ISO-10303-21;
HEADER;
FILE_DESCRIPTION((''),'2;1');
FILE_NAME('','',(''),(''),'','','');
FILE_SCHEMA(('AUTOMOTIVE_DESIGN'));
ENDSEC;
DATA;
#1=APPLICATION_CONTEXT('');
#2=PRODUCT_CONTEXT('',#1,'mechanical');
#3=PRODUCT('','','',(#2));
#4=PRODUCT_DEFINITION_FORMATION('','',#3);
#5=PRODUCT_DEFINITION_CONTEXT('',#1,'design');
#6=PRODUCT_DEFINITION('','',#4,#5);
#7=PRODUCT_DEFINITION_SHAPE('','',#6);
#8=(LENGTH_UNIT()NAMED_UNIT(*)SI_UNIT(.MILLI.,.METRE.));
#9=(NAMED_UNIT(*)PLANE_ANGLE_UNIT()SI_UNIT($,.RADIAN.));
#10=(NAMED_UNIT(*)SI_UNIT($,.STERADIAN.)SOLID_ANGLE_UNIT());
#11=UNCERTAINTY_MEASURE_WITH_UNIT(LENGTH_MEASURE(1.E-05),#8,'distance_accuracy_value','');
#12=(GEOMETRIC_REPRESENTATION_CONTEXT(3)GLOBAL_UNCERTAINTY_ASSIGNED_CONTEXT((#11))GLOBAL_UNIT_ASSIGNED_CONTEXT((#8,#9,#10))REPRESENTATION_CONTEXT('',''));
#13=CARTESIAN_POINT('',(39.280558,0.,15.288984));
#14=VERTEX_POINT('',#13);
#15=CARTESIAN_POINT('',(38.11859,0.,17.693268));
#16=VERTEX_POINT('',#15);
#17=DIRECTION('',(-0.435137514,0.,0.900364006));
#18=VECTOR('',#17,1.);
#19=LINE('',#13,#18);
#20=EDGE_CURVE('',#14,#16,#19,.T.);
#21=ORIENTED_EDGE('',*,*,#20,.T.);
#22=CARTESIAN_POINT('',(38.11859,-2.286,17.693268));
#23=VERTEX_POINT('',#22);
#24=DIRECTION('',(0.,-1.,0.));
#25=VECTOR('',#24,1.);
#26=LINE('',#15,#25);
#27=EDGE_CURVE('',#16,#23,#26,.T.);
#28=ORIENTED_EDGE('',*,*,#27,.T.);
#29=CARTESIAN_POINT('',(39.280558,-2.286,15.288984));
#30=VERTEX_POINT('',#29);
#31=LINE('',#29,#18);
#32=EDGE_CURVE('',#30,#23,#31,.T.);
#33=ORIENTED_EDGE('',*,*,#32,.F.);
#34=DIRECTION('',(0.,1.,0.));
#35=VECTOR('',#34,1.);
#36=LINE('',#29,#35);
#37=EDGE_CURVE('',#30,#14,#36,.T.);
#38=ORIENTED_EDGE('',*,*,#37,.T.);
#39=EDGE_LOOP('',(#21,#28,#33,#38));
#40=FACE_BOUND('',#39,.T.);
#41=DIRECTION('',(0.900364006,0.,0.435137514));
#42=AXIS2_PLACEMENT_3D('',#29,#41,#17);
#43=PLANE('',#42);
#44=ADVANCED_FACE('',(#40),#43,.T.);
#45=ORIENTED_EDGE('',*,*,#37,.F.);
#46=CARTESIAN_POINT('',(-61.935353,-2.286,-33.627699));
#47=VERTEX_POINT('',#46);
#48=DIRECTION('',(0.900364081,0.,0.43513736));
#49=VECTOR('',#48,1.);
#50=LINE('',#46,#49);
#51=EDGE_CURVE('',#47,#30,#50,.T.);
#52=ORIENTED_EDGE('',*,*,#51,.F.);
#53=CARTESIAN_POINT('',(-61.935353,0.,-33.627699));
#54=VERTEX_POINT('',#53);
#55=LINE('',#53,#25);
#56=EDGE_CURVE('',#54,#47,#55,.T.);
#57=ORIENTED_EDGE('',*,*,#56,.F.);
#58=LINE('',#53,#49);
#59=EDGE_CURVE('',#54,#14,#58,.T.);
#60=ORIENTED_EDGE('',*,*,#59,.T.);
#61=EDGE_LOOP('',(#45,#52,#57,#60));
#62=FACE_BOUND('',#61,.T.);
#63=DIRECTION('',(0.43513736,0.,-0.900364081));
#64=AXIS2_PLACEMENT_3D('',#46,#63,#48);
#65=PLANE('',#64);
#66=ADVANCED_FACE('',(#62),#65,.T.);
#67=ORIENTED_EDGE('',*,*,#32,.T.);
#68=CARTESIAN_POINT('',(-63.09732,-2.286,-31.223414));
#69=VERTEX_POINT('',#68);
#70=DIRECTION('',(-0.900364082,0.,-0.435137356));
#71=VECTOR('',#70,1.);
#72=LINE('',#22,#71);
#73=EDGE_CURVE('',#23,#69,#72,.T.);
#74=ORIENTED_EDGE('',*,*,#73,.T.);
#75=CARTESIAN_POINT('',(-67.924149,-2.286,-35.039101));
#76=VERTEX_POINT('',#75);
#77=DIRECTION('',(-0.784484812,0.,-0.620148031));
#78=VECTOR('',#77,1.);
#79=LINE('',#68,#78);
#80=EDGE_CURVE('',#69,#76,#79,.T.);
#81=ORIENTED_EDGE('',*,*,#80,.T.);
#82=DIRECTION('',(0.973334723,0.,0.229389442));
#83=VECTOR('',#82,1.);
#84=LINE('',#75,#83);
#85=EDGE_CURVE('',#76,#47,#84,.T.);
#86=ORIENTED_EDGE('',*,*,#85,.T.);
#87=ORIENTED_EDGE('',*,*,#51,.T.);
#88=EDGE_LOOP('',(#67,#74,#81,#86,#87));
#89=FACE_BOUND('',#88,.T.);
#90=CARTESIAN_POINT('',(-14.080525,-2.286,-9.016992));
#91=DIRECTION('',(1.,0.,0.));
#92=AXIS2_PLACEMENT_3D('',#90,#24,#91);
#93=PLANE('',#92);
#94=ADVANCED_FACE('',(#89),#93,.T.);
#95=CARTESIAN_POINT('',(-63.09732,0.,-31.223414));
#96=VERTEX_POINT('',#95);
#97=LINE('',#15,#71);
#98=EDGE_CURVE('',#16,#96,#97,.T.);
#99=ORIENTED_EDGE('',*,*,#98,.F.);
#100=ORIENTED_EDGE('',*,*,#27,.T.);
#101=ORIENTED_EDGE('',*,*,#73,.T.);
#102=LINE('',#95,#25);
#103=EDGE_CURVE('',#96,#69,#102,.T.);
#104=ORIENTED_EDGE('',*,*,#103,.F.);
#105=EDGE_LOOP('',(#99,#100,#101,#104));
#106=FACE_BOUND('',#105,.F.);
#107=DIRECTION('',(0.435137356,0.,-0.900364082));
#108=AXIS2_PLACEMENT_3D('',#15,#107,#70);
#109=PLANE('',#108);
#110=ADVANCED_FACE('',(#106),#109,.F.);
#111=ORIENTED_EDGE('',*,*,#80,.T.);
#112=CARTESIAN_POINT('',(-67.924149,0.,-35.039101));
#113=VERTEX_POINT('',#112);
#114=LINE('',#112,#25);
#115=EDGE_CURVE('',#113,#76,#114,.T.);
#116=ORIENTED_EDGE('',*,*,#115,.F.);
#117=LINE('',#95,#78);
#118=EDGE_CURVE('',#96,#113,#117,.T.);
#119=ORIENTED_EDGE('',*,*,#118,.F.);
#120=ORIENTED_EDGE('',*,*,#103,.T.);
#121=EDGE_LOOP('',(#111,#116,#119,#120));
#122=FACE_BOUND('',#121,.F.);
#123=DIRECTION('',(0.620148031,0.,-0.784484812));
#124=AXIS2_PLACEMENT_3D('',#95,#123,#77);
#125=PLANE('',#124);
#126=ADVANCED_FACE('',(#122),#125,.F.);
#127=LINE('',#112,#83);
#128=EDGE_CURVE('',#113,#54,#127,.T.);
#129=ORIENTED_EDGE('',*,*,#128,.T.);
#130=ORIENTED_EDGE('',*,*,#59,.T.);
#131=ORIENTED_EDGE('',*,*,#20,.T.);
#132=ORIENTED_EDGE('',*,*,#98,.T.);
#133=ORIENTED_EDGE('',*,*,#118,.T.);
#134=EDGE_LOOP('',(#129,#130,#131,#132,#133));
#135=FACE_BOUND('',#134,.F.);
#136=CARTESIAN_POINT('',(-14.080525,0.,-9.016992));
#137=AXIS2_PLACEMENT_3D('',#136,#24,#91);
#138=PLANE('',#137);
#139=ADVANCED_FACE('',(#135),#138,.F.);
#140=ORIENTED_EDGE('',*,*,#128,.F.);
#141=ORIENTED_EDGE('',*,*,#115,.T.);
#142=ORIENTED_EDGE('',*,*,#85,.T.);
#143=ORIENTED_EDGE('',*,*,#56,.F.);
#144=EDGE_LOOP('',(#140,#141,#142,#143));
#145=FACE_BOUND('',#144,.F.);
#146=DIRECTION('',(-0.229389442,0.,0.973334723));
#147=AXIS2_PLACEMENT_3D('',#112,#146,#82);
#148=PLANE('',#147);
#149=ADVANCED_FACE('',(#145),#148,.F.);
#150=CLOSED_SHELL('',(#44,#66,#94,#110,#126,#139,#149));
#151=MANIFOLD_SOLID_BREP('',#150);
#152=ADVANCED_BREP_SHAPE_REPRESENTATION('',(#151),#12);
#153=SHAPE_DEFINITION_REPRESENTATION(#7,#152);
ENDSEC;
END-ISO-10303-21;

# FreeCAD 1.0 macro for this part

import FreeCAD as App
import Part
import Sketcher
Q = App.Units.Quantity


def add_polygon(sketch, points):
    """Adds a closed chain of lines whose ends are joined by coincident constraints."""
    first, n = sketch.GeometryCount, len(points)
    for a, b in zip(points, points[1:] + points[:1]):
        sketch.addGeometry(Part.LineSegment(App.Vector(*a, 0), App.Vector(*b, 0)), False)
    for i in range(n):
        sketch.addConstraint(Sketcher.Constraint("Coincident", first + i, 2, first + (i + 1) % n, 1))

doc = App.newDocument("Part")
body = doc.addObject("PartDesign::Body", "Body")

# Sketch on XZ plane
sketch1 = body.newObject("Sketcher::SketchObject", "Sketch")
sketch1.AttachmentSupport = (doc.getObject("XZ_Plane"), [""])
sketch1.MapMode = "FlatFace"
add_polygon(sketch1, [(39.3, 15.3), (38.1, 17.7), (-63.1, -31.2), (-67.9, -35), (-61.9, -33.6)])  # lines 0-4
sketch1.addConstraint(Sketcher.Constraint("Perpendicular", 0, 1))
sketch1.addConstraint(Sketcher.Constraint("Parallel", 1, 4))
sketch1.addConstraint(Sketcher.Constraint("Equal", 2, 3))
sketch1.addConstraint(Sketcher.Constraint("Equal", 1, 4))
sketch1.addConstraint(Sketcher.Constraint("DistanceY", 2, 2, -1, 1, Q("35.039101 mm")))
sketch1.addConstraint(Sketcher.Constraint("DistanceY", 3, 2, -1, 1, Q("33.627699 mm")))
sketch1.addConstraint(Sketcher.Constraint("DistanceX", -1, 1, 0, 2, Q("38.11859 mm")))
sketch1.addConstraint(Sketcher.Constraint("DistanceY", -1, 1, 0, 2, Q("17.693268 mm")))
sketch1.addConstraint(Sketcher.Constraint("DistanceX", 1, 2, -1, 1, Q("63.09732 mm")))
sketch1.addConstraint(Sketcher.Constraint("DistanceX", 2, 2, -1, 1, Q("67.924149 mm")))
pad1 = body.newObject("PartDesign::Pad", "Pad")
pad1.Profile = sketch1
pad1.Length = Q("0.09 in")

# Sketch on XZ plane
sketch2 = body.newObject("Sketcher::SketchObject", "Sketch001")
sketch2.AttachmentSupport = (doc.getObject("XZ_Plane"), [""])
sketch2.MapMode = "FlatFace"
sketch2.AttachmentOffset = App.Placement(App.Vector(0, 0, 0.09 * 25.4), App.Rotation())
add_polygon(sketch2, [(-61.9, -33.6), (39.3, 15.3), (38.1, 17.7), (-63.1, -31.2), (-67.9, -35)])  # lines 0-4
sketch2.addConstraint(Sketcher.Constraint("Perpendicular", 0, 1))
sketch2.addConstraint(Sketcher.Constraint("Perpendicular", 1, 2))
sketch2.addConstraint(Sketcher.Constraint("Equal", 0, 2))
sketch2.addConstraint(Sketcher.Constraint("Equal", 3, 4))
sketch2.addConstraint(Sketcher.Constraint("DistanceY", 3, 2, -1, 1, Q("35.039101 mm")))
sketch2.addConstraint(Sketcher.Constraint("DistanceY", 4, 2, -1, 1, Q("33.627699 mm")))
sketch2.addConstraint(Sketcher.Constraint("DistanceX", -1, 1, 1, 2, Q("38.11859 mm")))
sketch2.addConstraint(Sketcher.Constraint("DistanceY", -1, 1, 1, 2, Q("17.693268 mm")))
sketch2.addConstraint(Sketcher.Constraint("DistanceX", 2, 2, -1, 1, Q("63.09732 mm")))
sketch2.addConstraint(Sketcher.Constraint("DistanceX", 3, 2, -1, 1, Q("67.924149 mm")))
pad2 = body.newObject("PartDesign::Pad", "Pad001")
pad2.Profile = sketch2
pad2.Length = Q("0.09 in")
pad2.Reversed = True

doc.recompute()
